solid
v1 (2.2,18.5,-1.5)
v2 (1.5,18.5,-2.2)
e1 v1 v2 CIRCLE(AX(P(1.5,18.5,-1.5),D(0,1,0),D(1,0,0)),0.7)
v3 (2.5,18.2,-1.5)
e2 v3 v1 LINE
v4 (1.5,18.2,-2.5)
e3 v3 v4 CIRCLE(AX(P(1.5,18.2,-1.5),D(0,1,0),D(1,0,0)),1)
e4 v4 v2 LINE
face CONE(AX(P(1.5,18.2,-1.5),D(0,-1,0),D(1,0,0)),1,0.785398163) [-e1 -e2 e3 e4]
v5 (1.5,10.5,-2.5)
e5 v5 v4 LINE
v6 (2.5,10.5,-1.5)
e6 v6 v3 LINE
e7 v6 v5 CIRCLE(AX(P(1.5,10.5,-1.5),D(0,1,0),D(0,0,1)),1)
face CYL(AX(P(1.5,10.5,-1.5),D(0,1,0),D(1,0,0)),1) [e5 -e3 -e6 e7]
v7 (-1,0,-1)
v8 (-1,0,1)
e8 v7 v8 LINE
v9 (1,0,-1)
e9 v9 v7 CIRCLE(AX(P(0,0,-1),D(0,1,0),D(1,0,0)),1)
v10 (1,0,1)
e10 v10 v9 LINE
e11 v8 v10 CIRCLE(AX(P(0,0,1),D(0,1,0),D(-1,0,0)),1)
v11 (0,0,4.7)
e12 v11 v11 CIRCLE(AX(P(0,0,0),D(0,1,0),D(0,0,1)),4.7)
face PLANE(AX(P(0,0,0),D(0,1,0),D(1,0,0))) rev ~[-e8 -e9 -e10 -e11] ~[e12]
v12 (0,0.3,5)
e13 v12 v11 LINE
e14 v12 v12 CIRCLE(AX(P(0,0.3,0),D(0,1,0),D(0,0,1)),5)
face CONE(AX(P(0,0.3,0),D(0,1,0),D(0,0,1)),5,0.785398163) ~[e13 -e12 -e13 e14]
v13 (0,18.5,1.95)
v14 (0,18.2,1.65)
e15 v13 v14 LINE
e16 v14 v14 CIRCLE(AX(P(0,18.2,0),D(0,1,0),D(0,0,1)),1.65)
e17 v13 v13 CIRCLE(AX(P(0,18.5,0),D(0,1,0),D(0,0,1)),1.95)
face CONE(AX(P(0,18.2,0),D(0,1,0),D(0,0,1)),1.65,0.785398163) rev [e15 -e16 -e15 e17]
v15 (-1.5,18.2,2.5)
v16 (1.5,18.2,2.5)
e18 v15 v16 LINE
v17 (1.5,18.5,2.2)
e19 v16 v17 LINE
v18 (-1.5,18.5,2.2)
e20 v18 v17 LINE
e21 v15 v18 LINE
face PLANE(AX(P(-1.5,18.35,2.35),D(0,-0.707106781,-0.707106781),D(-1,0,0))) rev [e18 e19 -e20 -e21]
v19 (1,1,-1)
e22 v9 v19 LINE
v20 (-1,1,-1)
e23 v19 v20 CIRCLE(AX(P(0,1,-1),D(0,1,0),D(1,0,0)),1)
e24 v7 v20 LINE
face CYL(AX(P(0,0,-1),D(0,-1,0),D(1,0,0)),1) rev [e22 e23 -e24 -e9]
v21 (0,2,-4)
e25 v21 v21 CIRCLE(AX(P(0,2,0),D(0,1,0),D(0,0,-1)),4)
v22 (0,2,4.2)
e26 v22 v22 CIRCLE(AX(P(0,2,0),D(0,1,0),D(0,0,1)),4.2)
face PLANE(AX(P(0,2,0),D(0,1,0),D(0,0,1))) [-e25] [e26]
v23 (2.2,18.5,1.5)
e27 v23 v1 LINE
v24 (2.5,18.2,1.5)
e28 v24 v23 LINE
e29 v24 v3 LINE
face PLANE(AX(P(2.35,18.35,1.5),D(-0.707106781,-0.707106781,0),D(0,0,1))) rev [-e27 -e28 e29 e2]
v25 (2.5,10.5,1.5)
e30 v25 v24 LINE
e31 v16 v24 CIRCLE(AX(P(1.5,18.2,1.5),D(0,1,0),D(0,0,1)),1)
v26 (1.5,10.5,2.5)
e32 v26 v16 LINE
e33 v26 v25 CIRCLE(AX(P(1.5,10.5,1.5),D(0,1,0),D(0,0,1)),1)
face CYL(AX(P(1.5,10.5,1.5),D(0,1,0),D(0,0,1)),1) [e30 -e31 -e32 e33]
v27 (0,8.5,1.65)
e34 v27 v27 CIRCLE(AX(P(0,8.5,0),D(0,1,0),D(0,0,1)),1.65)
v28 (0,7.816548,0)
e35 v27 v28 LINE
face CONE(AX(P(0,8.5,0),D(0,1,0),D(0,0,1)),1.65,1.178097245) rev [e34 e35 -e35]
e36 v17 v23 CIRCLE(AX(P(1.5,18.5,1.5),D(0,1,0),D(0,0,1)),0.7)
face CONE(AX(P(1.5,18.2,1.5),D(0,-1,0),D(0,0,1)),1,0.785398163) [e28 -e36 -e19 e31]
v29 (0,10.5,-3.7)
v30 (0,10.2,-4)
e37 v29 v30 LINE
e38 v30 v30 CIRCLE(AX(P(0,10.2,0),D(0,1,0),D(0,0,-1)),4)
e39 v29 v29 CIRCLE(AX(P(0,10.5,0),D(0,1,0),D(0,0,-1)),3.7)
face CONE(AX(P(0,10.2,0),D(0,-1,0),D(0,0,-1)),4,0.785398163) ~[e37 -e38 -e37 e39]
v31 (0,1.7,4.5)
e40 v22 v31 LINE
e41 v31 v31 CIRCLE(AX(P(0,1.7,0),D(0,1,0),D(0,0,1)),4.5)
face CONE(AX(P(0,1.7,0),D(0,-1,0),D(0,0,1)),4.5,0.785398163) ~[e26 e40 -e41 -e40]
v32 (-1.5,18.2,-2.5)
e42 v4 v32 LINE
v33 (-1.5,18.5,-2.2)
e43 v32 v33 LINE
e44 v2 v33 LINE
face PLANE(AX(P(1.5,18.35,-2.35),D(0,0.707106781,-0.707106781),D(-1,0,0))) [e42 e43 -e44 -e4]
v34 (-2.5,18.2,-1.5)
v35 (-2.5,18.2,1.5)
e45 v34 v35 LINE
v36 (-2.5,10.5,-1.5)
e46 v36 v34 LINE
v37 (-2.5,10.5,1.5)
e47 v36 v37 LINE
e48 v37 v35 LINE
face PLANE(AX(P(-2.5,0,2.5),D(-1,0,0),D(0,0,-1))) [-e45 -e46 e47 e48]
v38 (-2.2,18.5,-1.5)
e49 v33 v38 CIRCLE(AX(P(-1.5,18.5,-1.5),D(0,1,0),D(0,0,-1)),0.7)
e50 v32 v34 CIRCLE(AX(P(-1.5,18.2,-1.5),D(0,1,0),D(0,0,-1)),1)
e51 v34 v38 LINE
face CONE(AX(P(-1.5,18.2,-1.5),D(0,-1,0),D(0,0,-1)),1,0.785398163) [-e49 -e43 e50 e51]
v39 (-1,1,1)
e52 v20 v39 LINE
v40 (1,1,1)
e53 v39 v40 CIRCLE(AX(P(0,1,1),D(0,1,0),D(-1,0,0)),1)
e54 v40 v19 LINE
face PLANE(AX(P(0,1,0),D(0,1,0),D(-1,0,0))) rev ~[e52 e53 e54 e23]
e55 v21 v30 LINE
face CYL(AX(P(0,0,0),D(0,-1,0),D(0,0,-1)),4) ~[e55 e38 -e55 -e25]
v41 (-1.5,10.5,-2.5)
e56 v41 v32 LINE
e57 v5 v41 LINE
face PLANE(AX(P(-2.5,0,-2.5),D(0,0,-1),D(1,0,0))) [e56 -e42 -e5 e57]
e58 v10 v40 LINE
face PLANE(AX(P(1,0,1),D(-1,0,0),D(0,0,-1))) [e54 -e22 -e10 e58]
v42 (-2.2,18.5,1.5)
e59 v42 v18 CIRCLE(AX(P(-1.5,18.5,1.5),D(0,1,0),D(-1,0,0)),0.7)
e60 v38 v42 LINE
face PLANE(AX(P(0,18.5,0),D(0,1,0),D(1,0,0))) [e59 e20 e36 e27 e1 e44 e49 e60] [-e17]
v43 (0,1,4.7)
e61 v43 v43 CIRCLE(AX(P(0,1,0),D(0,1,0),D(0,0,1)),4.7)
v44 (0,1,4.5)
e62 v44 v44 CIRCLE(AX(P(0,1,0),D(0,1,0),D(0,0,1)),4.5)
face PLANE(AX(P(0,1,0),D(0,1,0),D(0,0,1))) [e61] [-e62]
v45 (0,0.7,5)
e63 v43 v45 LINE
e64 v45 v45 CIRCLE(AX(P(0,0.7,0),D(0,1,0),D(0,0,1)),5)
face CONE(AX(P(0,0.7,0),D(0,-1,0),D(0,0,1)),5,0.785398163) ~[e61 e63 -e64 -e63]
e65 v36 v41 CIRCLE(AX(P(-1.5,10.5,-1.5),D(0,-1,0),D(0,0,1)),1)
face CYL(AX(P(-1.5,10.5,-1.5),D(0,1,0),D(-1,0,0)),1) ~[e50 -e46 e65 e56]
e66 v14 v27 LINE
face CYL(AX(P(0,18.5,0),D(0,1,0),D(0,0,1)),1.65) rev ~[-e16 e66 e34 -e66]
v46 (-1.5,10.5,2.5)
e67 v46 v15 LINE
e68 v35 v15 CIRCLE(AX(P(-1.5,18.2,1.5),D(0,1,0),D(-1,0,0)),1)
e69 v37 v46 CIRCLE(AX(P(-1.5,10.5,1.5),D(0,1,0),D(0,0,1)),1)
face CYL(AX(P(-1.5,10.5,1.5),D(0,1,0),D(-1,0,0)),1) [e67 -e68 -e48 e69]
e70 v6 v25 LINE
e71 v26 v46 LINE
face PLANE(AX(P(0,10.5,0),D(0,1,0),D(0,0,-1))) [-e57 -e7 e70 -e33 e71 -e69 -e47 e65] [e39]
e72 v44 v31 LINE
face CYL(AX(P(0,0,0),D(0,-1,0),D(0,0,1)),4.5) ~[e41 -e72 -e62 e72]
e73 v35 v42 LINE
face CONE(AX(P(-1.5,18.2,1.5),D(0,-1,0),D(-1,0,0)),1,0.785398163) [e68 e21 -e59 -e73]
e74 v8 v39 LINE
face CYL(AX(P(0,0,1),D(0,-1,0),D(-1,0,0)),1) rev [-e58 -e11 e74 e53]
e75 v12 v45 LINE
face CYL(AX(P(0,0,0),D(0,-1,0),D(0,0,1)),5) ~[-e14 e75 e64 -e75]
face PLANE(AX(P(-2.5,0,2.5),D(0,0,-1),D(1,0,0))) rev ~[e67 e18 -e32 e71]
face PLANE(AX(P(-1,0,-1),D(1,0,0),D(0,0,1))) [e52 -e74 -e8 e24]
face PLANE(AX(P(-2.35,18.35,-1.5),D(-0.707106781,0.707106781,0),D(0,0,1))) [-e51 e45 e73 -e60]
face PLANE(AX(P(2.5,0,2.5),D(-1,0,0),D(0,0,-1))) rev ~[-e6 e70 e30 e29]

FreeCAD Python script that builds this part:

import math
import FreeCAD as App
import Part
import Sketcher
Q = App.Units.Quantity


def edges_at(feature, points):
    """Names of the edges that pass closest to the given points."""
    edges = feature.Shape.Edges
    near = lambda p: min(range(len(edges)), key=lambda i: edges[i].distToShape(Part.Vertex(*p))[0])
    return sorted({f"Edge{near(p) + 1}" for p in points})

doc = App.newDocument("Part")
body = doc.addObject("PartDesign::Body", "Body")

# Sketch on XZ plane
sketch1 = body.newObject("Sketcher::SketchObject", "Sketch")
sketch1.AttachmentSupport = (doc.getObject("XZ_Plane"), [""])
sketch1.MapMode = "FlatFace"
sketch1.addGeometry([
    Part.Circle(App.Vector(0, 0, 0), App.Vector(0, 0, 1), 5),
    Part.Circle(App.Vector(0, 0, 0), App.Vector(0, 0, 1), 4.5),
], False)
sketch1.addConstraint([
    Sketcher.Constraint("Coincident", 0, 3, -1, 1),
    Sketcher.Constraint("Coincident", 1, 3, -1, 1),
    Sketcher.Constraint("Diameter", 0, Q("10 mm")),
    Sketcher.Constraint("Diameter", 1, Q("9 mm")),
])
pad1 = body.newObject("PartDesign::Pad", "Pad")
pad1.Profile = sketch1
pad1.Length = 1
pad1.Reversed = True

# Sketch on XZ plane
sketch2 = body.newObject("Sketcher::SketchObject", "Sketch001")
sketch2.AttachmentSupport = (doc.getObject("XZ_Plane"), [""])
sketch2.MapMode = "FlatFace"
sketch2.addGeometry([
    Part.Circle(App.Vector(0, 0, 0), App.Vector(0, 0, 1), 4.5),
    Part.Circle(App.Vector(0, 0, 0), App.Vector(0, 0, 1), 4),
], False)
sketch2.addConstraint([
    Sketcher.Constraint("Coincident", 0, 3, -1, 1),
    Sketcher.Constraint("Coincident", 1, 3, -1, 1),
    Sketcher.Constraint("Diameter", 0, Q("9 mm")),
    Sketcher.Constraint("Diameter", 1, Q("8 mm")),
])
pad2 = body.newObject("PartDesign::Pad", "Pad001")
pad2.Profile = sketch2
pad2.Length = 2
pad2.Reversed = True

# Sketch on XZ plane
sketch3 = body.newObject("Sketcher::SketchObject", "Sketch002")
sketch3.AttachmentSupport = (doc.getObject("XZ_Plane"), [""])
sketch3.MapMode = "FlatFace"
sketch3.addGeometry(Part.Circle(App.Vector(0, 0, 0), App.Vector(0, 0, 1), 4), False)
sketch3.addConstraint([
    Sketcher.Constraint("Coincident", 0, 3, -1, 1),
    Sketcher.Constraint("Diameter", 0, Q("8 mm")),
])
pad3 = body.newObject("PartDesign::Pad", "Pad002")
pad3.Profile = sketch3
pad3.Length = 10.5
pad3.Reversed = True

# Sketch on XZ plane
sketch4 = body.newObject("Sketcher::SketchObject", "Sketch003")
sketch4.AttachmentSupport = (doc.getObject("XZ_Plane"), [""])
sketch4.MapMode = "FlatFace"
sketch4.addGeometry([
    Part.LineSegment(App.Vector(-2.5, -2.5, 0), App.Vector(-2.5, 2.5, 0)),
    Part.LineSegment(App.Vector(-2.5, 2.5, 0), App.Vector(2.5, 2.5, 0)),
    Part.LineSegment(App.Vector(2.5, 2.5, 0), App.Vector(2.5, -2.5, 0)),
    Part.LineSegment(App.Vector(2.5, -2.5, 0), App.Vector(-2.5, -2.5, 0)),
], False)
sketch4.addConstraint([
    Sketcher.Constraint("Coincident", 0, 2, 1, 1),
    Sketcher.Constraint("Coincident", 1, 2, 2, 1),
    Sketcher.Constraint("Coincident", 2, 2, 3, 1),
    Sketcher.Constraint("Coincident", 3, 2, 0, 1),
    Sketcher.Constraint("Vertical", 0),
    Sketcher.Constraint("Horizontal", 1),
    Sketcher.Constraint("Vertical", 2),
    Sketcher.Constraint("Horizontal", 3),
    Sketcher.Constraint("Symmetric", 0, 2, 2, 2, -1, 1),
    Sketcher.Constraint("Equal", 3, 0),
    Sketcher.Constraint("DistanceX", 1, 1, 1, 2, Q("5 mm")),
])
pad4 = body.newObject("PartDesign::Pad", "Pad003")
pad4.Profile = sketch4
pad4.Length = 18.5
pad4.Reversed = True

# Sketch on XZ plane
sketch5 = body.newObject("Sketcher::SketchObject", "Sketch004")
sketch5.AttachmentSupport = (doc.getObject("XZ_Plane"), [""])
sketch5.MapMode = "FlatFace"
sketch5.addGeometry([
    Part.LineSegment(App.Vector(1, -1, 0), App.Vector(1, 1, 0)),
    Part.ArcOfCircle(Part.Circle(App.Vector(0, 1, 0), App.Vector(0, 0, 1), 1), math.radians(0), math.radians(180)),
    Part.LineSegment(App.Vector(-1, 1, 0), App.Vector(-1, -1, 0)),
    Part.ArcOfCircle(Part.Circle(App.Vector(0, -1, 0), App.Vector(0, 0, 1), 1), math.radians(180), math.radians(360)),
], False)
sketch5.addConstraint([
    Sketcher.Constraint("Tangent", 0, 2, 1, 1),
    Sketcher.Constraint("Tangent", 1, 2, 2, 1),
    Sketcher.Constraint("Tangent", 2, 2, 3, 1),
    Sketcher.Constraint("Tangent", 3, 2, 0, 1),
    Sketcher.Constraint("Vertical", 0),
    Sketcher.Constraint("Vertical", 2),
    Sketcher.Constraint("Symmetric", 1, 3, 3, 3, -1, 1),
    Sketcher.Constraint("Radius", 1, Q("1 mm")),
    Sketcher.Constraint("DistanceY", 0, 1, 0, 2, Q("2 mm")),
])
pocket1 = body.newObject("PartDesign::Pocket", "Pocket")
pocket1.Profile = sketch5
pocket1.Length = 1

# Sketch on XY plane
sketch6 = body.newObject("Sketcher::SketchObject", "Sketch005")
sketch6.AttachmentSupport = (doc.getObject("XY_Plane"), [""])
sketch6.MapMode = "FlatFace"
sketch6.addGeometry([
    Part.LineSegment(App.Vector(0, 8.5, 0), App.Vector(-1.65, 8.5, 0)),
    Part.LineSegment(App.Vector(-1.65, 8.5, 0), App.Vector(0, 7.816548, 0)),
    Part.LineSegment(App.Vector(0, 7.816548, 0), App.Vector(0, 8.5, 0)),
], False)
sketch6.addConstraint([
    Sketcher.Constraint("Coincident", 0, 2, 1, 1),
    Sketcher.Constraint("Coincident", 1, 2, 2, 1),
    Sketcher.Constraint("Coincident", 2, 2, 0, 1),
    Sketcher.Constraint("Horizontal", 0),
    Sketcher.Constraint("Vertical", 2),
    Sketcher.Constraint("PointOnObject", 1, 2, -2),
    Sketcher.Constraint("Angle", 1, Q("-22.5 deg")),
    Sketcher.Constraint("DistanceX", 0, 2, 0, 1, Q("1.65 mm")),
    Sketcher.Constraint("DistanceY", -1, 1, 0, 2, Q("8.5 mm")),
])
groove = body.newObject("PartDesign::Groove", "Groove")
groove.Profile = sketch6
groove.ReferenceAxis = (sketch6, ["V_Axis"])
groove.Angle = 360

# Sketch on XZ plane
sketch7 = body.newObject("Sketcher::SketchObject", "Sketch006")
sketch7.AttachmentSupport = (doc.getObject("XZ_Plane"), [""])
sketch7.MapMode = "FlatFace"
sketch7.AttachmentOffset = App.Placement(App.Vector(0, 0, -18.5), App.Rotation())
sketch7.addGeometry(Part.Circle(App.Vector(0, 0, 0), App.Vector(0, 0, 1), 1.65), False)
sketch7.addConstraint([
    Sketcher.Constraint("Coincident", 0, 3, -1, 1),
    Sketcher.Constraint("Diameter", 0, Q("3.3 mm")),
])
pocket2 = body.newObject("PartDesign::Pocket", "Pocket001")
pocket2.Profile = sketch7
pocket2.Length = 10
pocket2.Reversed = True
doc.recompute()

fillet = body.newObject("PartDesign::Fillet", "Fillet")
fillet.Base = (pocket2, edges_at(pocket2, [
    (-2.5, 14.5, -2.5),
    (-2.5, 14.5, 2.5),
    (2.5, 14.5, 2.5),
    (2.5, 14.5, -2.5),
]))
fillet.Radius = 1
doc.recompute()

chamfer = body.newObject("PartDesign::Chamfer", "Chamfer")
chamfer.Base = (fillet, edges_at(fillet, [
    (0, 2, -4.5),
    (0, 1, -5),
    (0, 10.5, 4),
    (0, 0, -5),
    (0, 18.5, -1.65),
    (2.5, 18.5, 0),
    (0, 18.5, 2.5),
    (-2.5, 18.5, 0),
    (0, 18.5, -2.5),
    (-2.207, 18.5, -2.207),
    (-2.207, 18.5, 2.207),
    (2.207, 18.5, -2.207),
    (2.207, 18.5, 2.207),
]))
chamfer.Size = 0.3

doc.recompute()
